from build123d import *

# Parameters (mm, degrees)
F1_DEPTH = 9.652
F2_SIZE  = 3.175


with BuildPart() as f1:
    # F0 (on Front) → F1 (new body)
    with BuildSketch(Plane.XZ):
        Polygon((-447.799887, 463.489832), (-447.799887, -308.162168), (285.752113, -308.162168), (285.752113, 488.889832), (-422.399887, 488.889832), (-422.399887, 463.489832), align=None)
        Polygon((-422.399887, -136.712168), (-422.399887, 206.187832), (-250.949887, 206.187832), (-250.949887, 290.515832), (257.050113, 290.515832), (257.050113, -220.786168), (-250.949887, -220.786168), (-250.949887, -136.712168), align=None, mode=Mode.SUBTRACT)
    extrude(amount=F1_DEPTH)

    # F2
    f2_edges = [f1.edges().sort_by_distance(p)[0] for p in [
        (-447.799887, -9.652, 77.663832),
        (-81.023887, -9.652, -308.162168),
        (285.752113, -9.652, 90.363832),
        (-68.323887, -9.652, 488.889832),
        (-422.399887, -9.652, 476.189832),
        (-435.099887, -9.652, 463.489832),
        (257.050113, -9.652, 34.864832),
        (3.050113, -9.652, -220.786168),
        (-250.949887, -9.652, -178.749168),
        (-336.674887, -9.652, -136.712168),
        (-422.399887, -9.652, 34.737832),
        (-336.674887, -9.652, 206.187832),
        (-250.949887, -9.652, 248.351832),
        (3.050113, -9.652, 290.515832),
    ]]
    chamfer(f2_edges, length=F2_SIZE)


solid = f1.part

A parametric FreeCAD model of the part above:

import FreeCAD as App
import Part
import Sketcher

V = App.Vector
Q = App.Units.Quantity


def edges_at(feature, points):
    """Names of the edges that pass closest to the given points."""
    edges = feature.Shape.Edges
    near = lambda p: min(range(len(edges)), key=lambda i: edges[i].distToShape(Part.Vertex(*p))[0])
    return sorted({f"Edge{near(p) + 1}" for p in points})


def add_polygon(sketch, points):
    """Adds a closed chain of lines whose ends are joined by coincident constraints."""
    first, n = sketch.GeometryCount, len(points)
    for a, b in zip(points, points[1:] + points[:1]):
        sketch.addGeometry(Part.LineSegment(App.Vector(*a, 0), App.Vector(*b, 0)), False)
    for i in range(n):
        sketch.addConstraint(Sketcher.Constraint("Coincident", first + i, 2, first + (i + 1) % n, 1))

doc = App.newDocument("Part")
body = doc.addObject("PartDesign::Body", "Body")

sketch1 = body.newObject("Sketcher::SketchObject", "Sketch")
sketch1.AttachmentSupport = (doc.getObject("XZ_Plane"), [""])
sketch1.MapMode = "FlatFace"
add_polygon(sketch1, [(-447.799887, 463.489832), (-447.799887, -308.162168), (285.752113, -308.162168), (285.752113, 488.889832), (-422.399887, 488.889832), (-422.399887, 463.489832)])
add_polygon(sketch1, [(-250.949887, -136.712168), (-422.399887, -136.712168), (-422.399887, 206.187832), (-250.949887, 206.187832), (-250.949887, 290.515832), (257.050113, 290.515832), (257.050113, -220.786168), (-250.949887, -220.786168)])
sketch1.addConstraint(Sketcher.Constraint("Vertical", 0))
sketch1.addConstraint(Sketcher.Constraint("Horizontal", 1))
sketch1.addConstraint(Sketcher.Constraint("Vertical", 2))
sketch1.addConstraint(Sketcher.Constraint("Horizontal", 3))
sketch1.addConstraint(Sketcher.Constraint("Vertical", 4))
sketch1.addConstraint(Sketcher.Constraint("Horizontal", 5))
sketch1.addConstraint(Sketcher.Constraint("Horizontal", 6))
sketch1.addConstraint(Sketcher.Constraint("Vertical", 7))
sketch1.addConstraint(Sketcher.Constraint("Horizontal", 8))
sketch1.addConstraint(Sketcher.Constraint("Vertical", 9))
sketch1.addConstraint(Sketcher.Constraint("Horizontal", 10))
sketch1.addConstraint(Sketcher.Constraint("Vertical", 11))
sketch1.addConstraint(Sketcher.Constraint("Horizontal", 12))
sketch1.addConstraint(Sketcher.Constraint("Vertical", 13))
sketch1.addConstraint(Sketcher.Constraint("Vertical", 4, 2, 6, 2))
sketch1.addConstraint(Sketcher.Constraint("Vertical", 9, 2, 12, 2))
sketch1.addConstraint(Sketcher.Constraint("Equal", 5, 4))
sketch1.addConstraint(Sketcher.Constraint("DistanceX", 5, 2, 5, 1, Q("1 in")))
sketch1.addConstraint(Sketcher.Constraint("DistanceX", 10, 1, 10, 2, Q("20 in")))
sketch1.addConstraint(Sketcher.Constraint("DistanceY", 7, 1, 7, 2, Q("13.5 in")))
sketch1.addConstraint(Sketcher.Constraint("DistanceX", 1, 1, 1, 2, Q("28.88 in")))
sketch1.addConstraint(Sketcher.Constraint("DistanceX", 6, 2, 6, 1, Q("6.75 in")))
sketch1.addConstraint(Sketcher.Constraint("DistanceY", 0, 2, 0, 1, Q("30.38 in")))
sketch1.addConstraint(Sketcher.Constraint("DistanceY", 9, 1, 9, 2, Q("3.32 in")))
sketch1.addConstraint(Sketcher.Constraint("DistanceY", 11, 2, 11, 1, Q("20.13 in")))
sketch1.addConstraint(Sketcher.Constraint("DistanceY", 0, 2, 6, 2, Q("6.75 in")))
sketch1.addConstraint(Sketcher.Constraint("DistanceY", 0, 2, -1, 1, Q("308.162168 mm")))
sketch1.addConstraint(Sketcher.Constraint("DistanceX", 0, 2, -1, 1, Q("447.799887 mm")))
pad1 = body.newObject("PartDesign::Pad", "Pad")
pad1.Profile = sketch1
pad1.Length = Q("0.38 in")
doc.recompute()

chamfer = body.newObject("PartDesign::Chamfer", "Chamfer")
chamfer.Base = (pad1, edges_at(pad1, [
    (-447.8, -9.652, 77.664),
    (-81.024, -9.652, -308.162),
    (285.752, -9.652, 90.364),
    (-68.324, -9.652, 488.89),
    (-422.4, -9.652, 476.19),
    (-435.1, -9.652, 463.49),
    (257.05, -9.652, 34.865),
    (3.05, -9.652, -220.786),
    (-250.95, -9.652, -178.749),
    (-336.675, -9.652, -136.712),
    (-422.4, -9.652, 34.738),
    (-336.675, -9.652, 206.188),
    (-250.95, -9.652, 248.352),
    (3.05, -9.652, 290.516),
]))
chamfer.Size = Q("0.125 in")

doc.recompute()
